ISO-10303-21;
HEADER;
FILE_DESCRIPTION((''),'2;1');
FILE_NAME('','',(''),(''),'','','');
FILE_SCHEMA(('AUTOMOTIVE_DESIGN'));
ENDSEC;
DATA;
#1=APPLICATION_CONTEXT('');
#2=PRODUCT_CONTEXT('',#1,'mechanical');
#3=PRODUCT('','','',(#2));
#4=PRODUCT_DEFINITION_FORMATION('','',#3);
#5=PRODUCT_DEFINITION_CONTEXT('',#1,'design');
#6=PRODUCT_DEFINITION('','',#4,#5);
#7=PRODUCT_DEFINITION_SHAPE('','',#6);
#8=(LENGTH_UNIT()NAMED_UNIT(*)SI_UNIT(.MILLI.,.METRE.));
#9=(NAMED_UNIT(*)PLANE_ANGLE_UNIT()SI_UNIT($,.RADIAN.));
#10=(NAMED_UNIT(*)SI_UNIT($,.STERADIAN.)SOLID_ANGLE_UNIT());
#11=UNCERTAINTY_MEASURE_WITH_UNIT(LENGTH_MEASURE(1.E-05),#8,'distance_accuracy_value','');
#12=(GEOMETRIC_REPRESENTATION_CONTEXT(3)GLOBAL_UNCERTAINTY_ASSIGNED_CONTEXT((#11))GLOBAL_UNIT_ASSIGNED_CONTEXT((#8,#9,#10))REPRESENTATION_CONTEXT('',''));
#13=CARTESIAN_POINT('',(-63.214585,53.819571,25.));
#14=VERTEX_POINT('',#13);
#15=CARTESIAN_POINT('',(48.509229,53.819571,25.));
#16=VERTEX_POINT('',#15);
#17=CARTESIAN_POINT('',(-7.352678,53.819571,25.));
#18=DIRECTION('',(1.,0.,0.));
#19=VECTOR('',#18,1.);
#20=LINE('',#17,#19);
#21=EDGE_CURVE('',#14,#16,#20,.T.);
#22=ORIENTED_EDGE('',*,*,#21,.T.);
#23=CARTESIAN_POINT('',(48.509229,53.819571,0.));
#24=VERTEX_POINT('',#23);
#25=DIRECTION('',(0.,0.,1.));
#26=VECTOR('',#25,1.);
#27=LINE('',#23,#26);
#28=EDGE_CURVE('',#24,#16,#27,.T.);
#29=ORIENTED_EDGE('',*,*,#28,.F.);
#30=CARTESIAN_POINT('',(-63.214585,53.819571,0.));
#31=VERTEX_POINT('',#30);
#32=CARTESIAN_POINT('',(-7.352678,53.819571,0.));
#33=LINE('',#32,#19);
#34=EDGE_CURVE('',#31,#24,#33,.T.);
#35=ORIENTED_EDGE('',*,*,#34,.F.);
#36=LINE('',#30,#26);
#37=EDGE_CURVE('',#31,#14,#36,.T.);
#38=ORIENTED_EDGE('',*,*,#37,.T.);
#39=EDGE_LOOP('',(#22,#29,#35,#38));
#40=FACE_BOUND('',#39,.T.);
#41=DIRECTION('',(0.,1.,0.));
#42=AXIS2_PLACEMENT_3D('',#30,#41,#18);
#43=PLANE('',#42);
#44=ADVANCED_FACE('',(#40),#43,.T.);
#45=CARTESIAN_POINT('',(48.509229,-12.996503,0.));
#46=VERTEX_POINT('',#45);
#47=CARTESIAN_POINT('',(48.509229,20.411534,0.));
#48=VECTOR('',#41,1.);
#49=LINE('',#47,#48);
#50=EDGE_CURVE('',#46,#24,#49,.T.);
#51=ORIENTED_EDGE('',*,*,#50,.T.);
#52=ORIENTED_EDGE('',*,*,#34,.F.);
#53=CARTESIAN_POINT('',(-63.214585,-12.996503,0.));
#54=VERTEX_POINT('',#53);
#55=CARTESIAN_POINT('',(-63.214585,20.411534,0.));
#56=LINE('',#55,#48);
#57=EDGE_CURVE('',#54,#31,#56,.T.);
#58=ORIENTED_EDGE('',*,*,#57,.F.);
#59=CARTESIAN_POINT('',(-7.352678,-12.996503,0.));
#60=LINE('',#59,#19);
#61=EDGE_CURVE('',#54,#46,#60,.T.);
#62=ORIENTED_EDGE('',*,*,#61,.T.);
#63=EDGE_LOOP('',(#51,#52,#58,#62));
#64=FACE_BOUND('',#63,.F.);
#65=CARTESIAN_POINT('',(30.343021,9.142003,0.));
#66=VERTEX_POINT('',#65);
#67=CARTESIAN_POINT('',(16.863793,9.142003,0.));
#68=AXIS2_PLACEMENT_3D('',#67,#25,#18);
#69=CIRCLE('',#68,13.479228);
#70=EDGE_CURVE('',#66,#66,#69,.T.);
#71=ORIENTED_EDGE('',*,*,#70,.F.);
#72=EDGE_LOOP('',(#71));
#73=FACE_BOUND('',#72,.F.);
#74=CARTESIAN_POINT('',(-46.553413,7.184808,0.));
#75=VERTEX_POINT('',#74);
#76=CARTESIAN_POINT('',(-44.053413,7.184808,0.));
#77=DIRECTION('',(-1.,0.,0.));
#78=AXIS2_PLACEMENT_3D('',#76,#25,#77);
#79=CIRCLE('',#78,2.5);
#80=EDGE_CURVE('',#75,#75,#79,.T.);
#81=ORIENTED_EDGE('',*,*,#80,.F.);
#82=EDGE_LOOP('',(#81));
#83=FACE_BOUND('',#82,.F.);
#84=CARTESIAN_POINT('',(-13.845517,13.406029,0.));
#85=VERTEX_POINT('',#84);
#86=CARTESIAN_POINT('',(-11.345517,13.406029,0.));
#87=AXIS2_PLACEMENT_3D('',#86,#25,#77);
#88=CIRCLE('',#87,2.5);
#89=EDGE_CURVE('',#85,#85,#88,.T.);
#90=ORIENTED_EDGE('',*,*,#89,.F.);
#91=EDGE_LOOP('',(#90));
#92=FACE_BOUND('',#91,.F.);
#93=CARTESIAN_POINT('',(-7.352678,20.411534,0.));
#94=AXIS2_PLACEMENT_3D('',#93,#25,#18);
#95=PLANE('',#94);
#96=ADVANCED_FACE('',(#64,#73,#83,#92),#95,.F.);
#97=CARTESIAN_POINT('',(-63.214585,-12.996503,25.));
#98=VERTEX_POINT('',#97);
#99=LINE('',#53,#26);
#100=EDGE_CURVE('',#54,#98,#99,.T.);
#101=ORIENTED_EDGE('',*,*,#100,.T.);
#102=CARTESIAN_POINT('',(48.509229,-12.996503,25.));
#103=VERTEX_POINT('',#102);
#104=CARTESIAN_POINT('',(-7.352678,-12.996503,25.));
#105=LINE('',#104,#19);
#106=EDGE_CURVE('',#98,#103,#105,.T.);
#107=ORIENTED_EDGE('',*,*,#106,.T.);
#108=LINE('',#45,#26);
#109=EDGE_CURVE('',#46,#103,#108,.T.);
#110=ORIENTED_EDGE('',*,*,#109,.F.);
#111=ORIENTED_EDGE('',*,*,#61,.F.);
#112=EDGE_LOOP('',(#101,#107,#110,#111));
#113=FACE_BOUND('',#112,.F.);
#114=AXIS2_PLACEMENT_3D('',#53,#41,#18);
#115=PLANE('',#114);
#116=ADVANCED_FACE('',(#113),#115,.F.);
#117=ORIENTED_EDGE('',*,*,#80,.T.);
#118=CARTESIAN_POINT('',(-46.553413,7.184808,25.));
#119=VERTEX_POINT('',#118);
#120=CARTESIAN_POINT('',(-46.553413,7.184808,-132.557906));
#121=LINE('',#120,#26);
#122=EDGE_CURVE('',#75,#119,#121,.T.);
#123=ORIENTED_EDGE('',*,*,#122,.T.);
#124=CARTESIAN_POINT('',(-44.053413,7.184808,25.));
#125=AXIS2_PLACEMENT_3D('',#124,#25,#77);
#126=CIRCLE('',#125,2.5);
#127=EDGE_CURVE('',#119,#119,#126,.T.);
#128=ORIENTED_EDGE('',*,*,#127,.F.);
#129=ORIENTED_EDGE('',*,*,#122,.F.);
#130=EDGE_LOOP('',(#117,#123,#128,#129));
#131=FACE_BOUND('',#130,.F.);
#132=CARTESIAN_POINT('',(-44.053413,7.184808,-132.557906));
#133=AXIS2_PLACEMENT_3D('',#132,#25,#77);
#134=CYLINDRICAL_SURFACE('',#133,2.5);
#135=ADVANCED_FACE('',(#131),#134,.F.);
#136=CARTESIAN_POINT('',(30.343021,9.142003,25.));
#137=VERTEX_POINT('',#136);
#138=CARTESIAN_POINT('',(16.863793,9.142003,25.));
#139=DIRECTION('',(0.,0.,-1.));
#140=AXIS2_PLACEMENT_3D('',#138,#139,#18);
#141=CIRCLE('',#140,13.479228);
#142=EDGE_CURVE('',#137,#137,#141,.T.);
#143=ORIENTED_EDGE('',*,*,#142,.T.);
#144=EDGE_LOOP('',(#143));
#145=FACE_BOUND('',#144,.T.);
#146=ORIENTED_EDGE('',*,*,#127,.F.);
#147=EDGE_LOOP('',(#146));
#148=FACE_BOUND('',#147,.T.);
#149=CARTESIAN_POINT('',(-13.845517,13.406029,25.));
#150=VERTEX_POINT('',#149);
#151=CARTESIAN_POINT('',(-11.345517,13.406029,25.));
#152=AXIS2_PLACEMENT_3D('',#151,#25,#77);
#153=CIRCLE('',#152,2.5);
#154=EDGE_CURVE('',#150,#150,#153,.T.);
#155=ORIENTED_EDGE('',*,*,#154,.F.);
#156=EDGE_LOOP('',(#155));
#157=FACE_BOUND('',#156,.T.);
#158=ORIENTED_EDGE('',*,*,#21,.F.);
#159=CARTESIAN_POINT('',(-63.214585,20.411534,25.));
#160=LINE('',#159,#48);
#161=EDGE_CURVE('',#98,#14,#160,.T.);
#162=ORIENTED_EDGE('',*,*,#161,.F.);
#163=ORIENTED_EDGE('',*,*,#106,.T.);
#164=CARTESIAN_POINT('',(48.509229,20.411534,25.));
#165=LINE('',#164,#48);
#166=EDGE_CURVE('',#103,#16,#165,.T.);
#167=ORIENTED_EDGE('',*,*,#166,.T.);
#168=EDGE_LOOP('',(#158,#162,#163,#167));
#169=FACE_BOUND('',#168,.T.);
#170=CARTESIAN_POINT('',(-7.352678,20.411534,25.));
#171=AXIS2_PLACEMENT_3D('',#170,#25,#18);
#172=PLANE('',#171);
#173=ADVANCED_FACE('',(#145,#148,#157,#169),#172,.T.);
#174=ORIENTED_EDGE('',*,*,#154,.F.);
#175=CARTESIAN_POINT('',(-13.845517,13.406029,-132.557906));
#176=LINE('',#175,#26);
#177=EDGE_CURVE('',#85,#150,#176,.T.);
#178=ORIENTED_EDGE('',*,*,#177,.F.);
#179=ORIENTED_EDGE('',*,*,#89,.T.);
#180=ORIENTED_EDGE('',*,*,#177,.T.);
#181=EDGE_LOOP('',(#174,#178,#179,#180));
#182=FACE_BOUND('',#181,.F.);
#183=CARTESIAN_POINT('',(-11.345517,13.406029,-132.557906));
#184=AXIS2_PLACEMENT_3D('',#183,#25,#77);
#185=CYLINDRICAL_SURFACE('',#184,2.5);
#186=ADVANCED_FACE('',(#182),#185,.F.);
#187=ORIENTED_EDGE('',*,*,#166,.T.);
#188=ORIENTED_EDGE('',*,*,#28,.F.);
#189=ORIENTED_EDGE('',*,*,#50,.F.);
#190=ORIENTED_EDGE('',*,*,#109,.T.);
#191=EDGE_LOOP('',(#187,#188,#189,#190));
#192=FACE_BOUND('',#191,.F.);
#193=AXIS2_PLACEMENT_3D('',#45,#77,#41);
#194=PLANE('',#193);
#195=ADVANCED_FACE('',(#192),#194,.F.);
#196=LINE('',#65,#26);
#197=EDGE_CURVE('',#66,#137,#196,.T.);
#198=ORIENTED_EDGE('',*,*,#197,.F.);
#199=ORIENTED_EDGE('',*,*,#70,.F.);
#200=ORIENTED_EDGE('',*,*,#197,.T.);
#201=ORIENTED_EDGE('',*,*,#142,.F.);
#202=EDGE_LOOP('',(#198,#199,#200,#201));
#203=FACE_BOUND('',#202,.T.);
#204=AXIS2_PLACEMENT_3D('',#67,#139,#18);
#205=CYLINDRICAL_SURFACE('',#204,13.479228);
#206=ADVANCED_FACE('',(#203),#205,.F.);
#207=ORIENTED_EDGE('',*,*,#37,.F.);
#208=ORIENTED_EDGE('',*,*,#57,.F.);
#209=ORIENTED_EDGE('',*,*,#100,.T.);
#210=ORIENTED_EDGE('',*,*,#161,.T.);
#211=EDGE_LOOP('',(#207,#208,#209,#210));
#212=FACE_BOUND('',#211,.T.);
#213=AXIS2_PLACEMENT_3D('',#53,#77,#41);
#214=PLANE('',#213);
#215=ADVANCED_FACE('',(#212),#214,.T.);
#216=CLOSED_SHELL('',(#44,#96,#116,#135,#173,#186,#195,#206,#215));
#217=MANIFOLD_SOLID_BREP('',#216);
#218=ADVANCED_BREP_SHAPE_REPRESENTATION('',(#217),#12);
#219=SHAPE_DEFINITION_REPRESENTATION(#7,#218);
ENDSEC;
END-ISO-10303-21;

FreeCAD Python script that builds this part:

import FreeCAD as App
import Part
import Sketcher

V = App.Vector

doc = App.newDocument("Part")
body = doc.addObject("PartDesign::Body", "Body")

sketch1 = body.newObject("Sketcher::SketchObject", "Sketch")
sketch1.AttachmentSupport = (doc.getObject("XY_Plane"), [""])
sketch1.MapMode = "FlatFace"
sketch1.addGeometry([
    Part.LineSegment(V(-63.214585, 53.819571, 0), V(-63.214585, -12.996503, 0)),
    Part.LineSegment(V(-63.214585, -12.996503, 0), V(48.509229, -12.996503, 0)),
    Part.LineSegment(V(48.509229, -12.996503, 0), V(48.509229, 53.819571, 0)),
    Part.LineSegment(V(48.509229, 53.819571, 0), V(-63.214585, 53.819571, 0)),
], False)
sketch1.addConstraint([
    Sketcher.Constraint("Coincident", 0, 2, 1, 1),
    Sketcher.Constraint("Coincident", 1, 2, 2, 1),
    Sketcher.Constraint("Coincident", 2, 2, 3, 1),
    Sketcher.Constraint("Coincident", 3, 2, 0, 1),
    Sketcher.Constraint("Vertical", 0),
    Sketcher.Constraint("Horizontal", 1),
    Sketcher.Constraint("Vertical", 2),
    Sketcher.Constraint("Horizontal", 3),
    Sketcher.Constraint("DistanceX", 1, 1, 1, 2, 111.723814),
    Sketcher.Constraint("DistanceY", 0, 2, 0, 1, 66.816074),
    Sketcher.Constraint("DistanceX", -1, 1, 1, 2, 48.509229),
    Sketcher.Constraint("DistanceY", -1, 1, 2, 2, 53.819571),
])
pad1 = body.newObject("PartDesign::Pad", "Pad")
pad1.Profile = sketch1
pad1.Length = 25

sketch2 = body.newObject("Sketcher::SketchObject", "Sketch001")
sketch2.AttachmentSupport = (doc.getObject("XY_Plane"), [""])
sketch2.MapMode = "FlatFace"
sketch2.addGeometry(Part.Circle(V(-44.053413, 7.184808, 0), V(0, 0, 1), 2.5), False)
sketch2.addConstraint([
    Sketcher.Constraint("Diameter", 0, 5.0),
    Sketcher.Constraint("DistanceX", 0, 3, -1, 1, 44.053413),
    Sketcher.Constraint("DistanceY", -1, 1, 0, 3, 7.184808),
])
doc.recompute()
hole = body.newObject("PartDesign::Hole", "Hole")
hole.Profile = sketch2
hole.ThreadType = "None"
hole.Diameter = 5
hole.DepthType = "ThroughAll"
hole.Reversed = True

sketch3 = body.newObject("Sketcher::SketchObject", "Sketch002")
sketch3.AttachmentSupport = (doc.getObject("XY_Plane"), [""])
sketch3.MapMode = "FlatFace"
sketch3.addGeometry(Part.Circle(V(-11.345517, 13.406029, 0), V(0, 0, 1), 2.5), False)
sketch3.addConstraint([
    Sketcher.Constraint("Diameter", 0, 5.0),
    Sketcher.Constraint("DistanceY", -1, 1, 0, 3, 13.406029),
    Sketcher.Constraint("DistanceX", 0, 3, -1, 1, 11.345517),
])
doc.recompute()
hole2 = body.newObject("PartDesign::Hole", "Hole001")
hole2.Profile = sketch3
hole2.ThreadType = "None"
hole2.Diameter = 5
hole2.DepthType = "ThroughAll"
hole2.Reversed = True

sketch4 = body.newObject("Sketcher::SketchObject", "Sketch003")
sketch4.AttachmentSupport = (doc.getObject("XY_Plane"), [""])
sketch4.MapMode = "FlatFace"
sketch4.addGeometry(Part.Circle(V(16.863793, 9.142003, 0), V(0, 0, 1), 13.479228), False)
sketch4.addConstraint([
    Sketcher.Constraint("Diameter", 0, 26.958456),
    Sketcher.Constraint("DistanceX", -1, 1, 0, 3, 16.863793),
    Sketcher.Constraint("DistanceY", -1, 1, 0, 3, 9.142003),
])
pocket1 = body.newObject("PartDesign::Pocket", "Pocket")
pocket1.Profile = sketch4
pocket1.Type = "ThroughAll"
pocket1.Reversed = True

doc.recompute()
